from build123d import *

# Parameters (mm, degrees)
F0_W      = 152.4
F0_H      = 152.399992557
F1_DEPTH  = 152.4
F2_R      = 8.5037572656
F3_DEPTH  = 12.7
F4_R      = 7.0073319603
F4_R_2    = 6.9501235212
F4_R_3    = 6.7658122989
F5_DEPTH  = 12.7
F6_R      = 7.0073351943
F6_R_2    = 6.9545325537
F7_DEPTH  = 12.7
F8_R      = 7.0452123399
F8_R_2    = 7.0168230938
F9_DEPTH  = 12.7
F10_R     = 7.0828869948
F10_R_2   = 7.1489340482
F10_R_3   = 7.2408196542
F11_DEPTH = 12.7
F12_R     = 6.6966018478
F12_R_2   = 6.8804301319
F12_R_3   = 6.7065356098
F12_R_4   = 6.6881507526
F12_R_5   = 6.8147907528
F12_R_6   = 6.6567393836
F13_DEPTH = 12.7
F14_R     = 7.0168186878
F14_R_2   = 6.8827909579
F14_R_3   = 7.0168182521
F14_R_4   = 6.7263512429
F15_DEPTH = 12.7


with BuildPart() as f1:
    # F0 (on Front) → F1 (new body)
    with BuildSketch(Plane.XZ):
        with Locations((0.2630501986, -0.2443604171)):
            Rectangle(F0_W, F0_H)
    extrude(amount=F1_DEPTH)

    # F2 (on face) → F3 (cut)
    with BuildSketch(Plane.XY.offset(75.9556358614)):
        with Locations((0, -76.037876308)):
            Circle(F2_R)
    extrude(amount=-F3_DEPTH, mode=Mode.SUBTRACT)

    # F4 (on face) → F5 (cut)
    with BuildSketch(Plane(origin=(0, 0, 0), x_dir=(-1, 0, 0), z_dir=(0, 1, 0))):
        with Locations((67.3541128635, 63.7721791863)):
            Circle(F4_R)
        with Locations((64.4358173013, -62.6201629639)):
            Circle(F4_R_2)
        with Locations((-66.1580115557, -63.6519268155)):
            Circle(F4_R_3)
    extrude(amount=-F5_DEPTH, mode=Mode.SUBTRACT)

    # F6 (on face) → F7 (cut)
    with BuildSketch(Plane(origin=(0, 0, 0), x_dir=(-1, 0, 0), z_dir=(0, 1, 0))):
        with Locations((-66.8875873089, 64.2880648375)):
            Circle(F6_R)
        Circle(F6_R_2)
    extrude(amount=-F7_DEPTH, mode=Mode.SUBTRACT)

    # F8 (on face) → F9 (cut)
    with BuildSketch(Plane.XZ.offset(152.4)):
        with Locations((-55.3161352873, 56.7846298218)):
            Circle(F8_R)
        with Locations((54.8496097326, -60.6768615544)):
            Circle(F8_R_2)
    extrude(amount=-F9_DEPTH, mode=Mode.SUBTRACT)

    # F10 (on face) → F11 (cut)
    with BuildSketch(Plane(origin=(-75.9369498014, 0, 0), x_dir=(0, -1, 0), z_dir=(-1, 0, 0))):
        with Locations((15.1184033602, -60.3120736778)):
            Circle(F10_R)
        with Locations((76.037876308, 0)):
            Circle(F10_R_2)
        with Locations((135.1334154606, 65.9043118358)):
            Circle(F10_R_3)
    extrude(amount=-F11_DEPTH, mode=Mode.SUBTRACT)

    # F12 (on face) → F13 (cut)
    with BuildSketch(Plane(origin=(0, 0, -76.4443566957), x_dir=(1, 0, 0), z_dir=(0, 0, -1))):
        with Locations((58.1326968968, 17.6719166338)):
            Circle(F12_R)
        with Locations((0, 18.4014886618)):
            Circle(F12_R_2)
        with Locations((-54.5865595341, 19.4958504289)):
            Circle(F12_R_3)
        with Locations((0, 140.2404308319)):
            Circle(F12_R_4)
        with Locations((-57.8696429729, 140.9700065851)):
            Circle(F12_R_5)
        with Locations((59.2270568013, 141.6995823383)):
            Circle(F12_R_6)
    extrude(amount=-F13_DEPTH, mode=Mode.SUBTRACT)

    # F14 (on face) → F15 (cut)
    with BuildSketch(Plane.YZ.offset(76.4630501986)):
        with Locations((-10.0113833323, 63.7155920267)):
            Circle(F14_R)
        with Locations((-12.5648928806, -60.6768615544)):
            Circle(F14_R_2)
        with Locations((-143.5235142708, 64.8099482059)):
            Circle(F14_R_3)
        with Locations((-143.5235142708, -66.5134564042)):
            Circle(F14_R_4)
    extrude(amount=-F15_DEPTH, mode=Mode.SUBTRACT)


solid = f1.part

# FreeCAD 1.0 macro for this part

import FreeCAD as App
import Part
import Sketcher
from FreeCAD import Vector
Q = App.Units.Quantity


def add_polygon(sketch, points):
    """Adds a closed chain of lines whose ends are joined by coincident constraints."""
    first, n = sketch.GeometryCount, len(points)
    for a, b in zip(points, points[1:] + points[:1]):
        sketch.addGeometry(Part.LineSegment(App.Vector(*a, 0), App.Vector(*b, 0)), False)
    for i in range(n):
        sketch.addConstraint(Sketcher.Constraint("Coincident", first + i, 2, first + (i + 1) % n, 1))

doc = App.newDocument("Part")
body = doc.addObject("PartDesign::Body", "Body")

sketch1 = body.newObject("Sketcher::SketchObject", "Sketch")
sketch1.AttachmentSupport = (doc.getObject("XZ_Plane"), [""])
sketch1.MapMode = "FlatFace"
add_polygon(sketch1, [(-76, 76), (-76, -76), (76, -76), (76, 76)])
sketch1.addConstraint([
    Sketcher.Constraint("Vertical", 0),
    Sketcher.Constraint("Horizontal", 1),
    Sketcher.Constraint("Vertical", 2),
    Sketcher.Constraint("Horizontal", 3),
    Sketcher.Constraint("DistanceX", 1, 1, 1, 2, Q("6 in")),
    Sketcher.Constraint("DistanceY", 0, 2, 0, 1, Q("152.399993 mm")),
    Sketcher.Constraint("DistanceX", 0, 2, -1, 1, Q("75.93695 mm")),
    Sketcher.Constraint("DistanceY", 0, 2, -1, 1, Q("76.444357 mm")),
])
pad1 = body.newObject("PartDesign::Pad", "Pad")
pad1.Profile = sketch1
pad1.Length = Q("6 in")

sketch2 = body.newObject("Sketcher::SketchObject", "Sketch001")
sketch2.AttachmentSupport = (doc.getObject("XY_Plane"), [""])
sketch2.MapMode = "FlatFace"
sketch2.AttachmentOffset = App.Placement(Vector(0, 0, 75.955636), App.Rotation())
sketch2.addGeometry(Part.Circle(Vector(0, -76, 0), Vector(0, 0, 1), 9), False)
sketch2.addConstraint([
    Sketcher.Constraint("PointOnObject", 0, 3, -2),
    Sketcher.Constraint("Diameter", 0, Q("17.007515 mm")),
    Sketcher.Constraint("DistanceY", 0, 3, -1, 1, Q("76.037876 mm")),
])
pocket1 = body.newObject("PartDesign::Pocket", "Pocket")
pocket1.Profile = sketch2
pocket1.Length = Q("0.5 in")

sketch3 = body.newObject("Sketcher::SketchObject", "Sketch002")
sketch3.AttachmentSupport = (doc.getObject("XZ_Plane"), [""])
sketch3.MapMode = "FlatFace"
sketch3.addGeometry([
    Part.Circle(Vector(-67, 64, 0), Vector(0, 0, 1), 7),
    Part.Circle(Vector(-64, -63, 0), Vector(0, 0, 1), 7),
    Part.Circle(Vector(66, -64, 0), Vector(0, 0, 1), 7),
], False)
sketch3.addConstraint([
    Sketcher.Constraint("Diameter", 0, Q("14.014664 mm")),
    Sketcher.Constraint("Diameter", 1, Q("13.900247 mm")),
    Sketcher.Constraint("Diameter", 2, Q("13.531625 mm")),
    Sketcher.Constraint("DistanceY", -1, 1, 0, 3, Q("63.772179 mm")),
    Sketcher.Constraint("DistanceX", -1, 1, 2, 3, Q("66.158012 mm")),
    Sketcher.Constraint("DistanceX", 1, 3, 2, 3, Q("130.593829 mm")),
    Sketcher.Constraint("DistanceX", 0, 3, -1, 1, Q("67.354113 mm")),
    Sketcher.Constraint("DistanceY", 1, 3, -1, 1, Q("62.620163 mm")),
    Sketcher.Constraint("DistanceY", 2, 3, -1, 1, Q("63.651927 mm")),
])
pocket2 = body.newObject("PartDesign::Pocket", "Pocket001")
pocket2.Profile = sketch3
pocket2.Length = Q("0.5 in")
pocket2.Reversed = True

sketch4 = body.newObject("Sketcher::SketchObject", "Sketch003")
sketch4.AttachmentSupport = (doc.getObject("XZ_Plane"), [""])
sketch4.MapMode = "FlatFace"
sketch4.addGeometry([
    Part.Circle(Vector(67, 64, 0), Vector(0, 0, 1), 7),
    Part.Circle(Vector(0, 0, 0), Vector(0, 0, 1), 7),
], False)
sketch4.addConstraint([
    Sketcher.Constraint("Coincident", 1, 3, -1, 1),
    Sketcher.Constraint("Diameter", 0, Q("14.01467 mm")),
    Sketcher.Constraint("Diameter", 1, Q("13.909065 mm")),
    Sketcher.Constraint("DistanceX", -1, 1, 0, 3, Q("66.887587 mm")),
    Sketcher.Constraint("DistanceY", -1, 1, 0, 3, Q("64.288065 mm")),
])
pocket3 = body.newObject("PartDesign::Pocket", "Pocket002")
pocket3.Profile = sketch4
pocket3.Length = Q("0.5 in")
pocket3.Reversed = True

sketch5 = body.newObject("Sketcher::SketchObject", "Sketch004")
sketch5.AttachmentSupport = (doc.getObject("XZ_Plane"), [""])
sketch5.MapMode = "FlatFace"
sketch5.AttachmentOffset = App.Placement(Vector(0, 0, 6 * 25.4), App.Rotation())
sketch5.addGeometry([
    Part.Circle(Vector(-55, 57, 0), Vector(0, 0, 1), 7),
    Part.Circle(Vector(55, -61, 0), Vector(0, 0, 1), 7),
], False)
sketch5.addConstraint([
    Sketcher.Constraint("Diameter", 0, Q("14.090425 mm")),
    Sketcher.Constraint("Diameter", 1, Q("14.033646 mm")),
    Sketcher.Constraint("DistanceY", -1, 1, 0, 3, Q("56.78463 mm")),
    Sketcher.Constraint("DistanceX", -1, 1, 1, 3, Q("54.84961 mm")),
    Sketcher.Constraint("DistanceY", 1, 3, -1, 1, Q("60.676862 mm")),
    Sketcher.Constraint("DistanceX", 0, 3, -1, 1, Q("55.316135 mm")),
])
pocket4 = body.newObject("PartDesign::Pocket", "Pocket003")
pocket4.Profile = sketch5
pocket4.Length = Q("0.5 in")

sketch6 = body.newObject("Sketcher::SketchObject", "Sketch005")
sketch6.AttachmentSupport = (doc.getObject("YZ_Plane"), [""])
sketch6.MapMode = "FlatFace"
sketch6.AttachmentOffset = App.Placement(Vector(0, 0, -75.93695), App.Rotation())
sketch6.addGeometry([
    Part.Circle(Vector(-15, -60, 0), Vector(0, 0, 1), 7),
    Part.Circle(Vector(-76, 0, 0), Vector(0, 0, 1), 7),
    Part.Circle(Vector(-135, 66, 0), Vector(0, 0, 1), 7),
], False)
sketch6.addConstraint([
    Sketcher.Constraint("PointOnObject", 1, 3, -1),
    Sketcher.Constraint("Diameter", 1, Q("14.297868 mm")),
    Sketcher.Constraint("Diameter", 2, Q("14.481639 mm")),
    Sketcher.Constraint("Diameter", 0, Q("14.165774 mm")),
    Sketcher.Constraint("DistanceY", -1, 1, 2, 3, Q("65.904312 mm")),
    Sketcher.Constraint("DistanceX", 2, 3, 1, 3, Q("59.095539 mm")),
    Sketcher.Constraint("DistanceX", 0, 3, -1, 1, Q("15.118403 mm")),
    Sketcher.Constraint("DistanceY", 0, 3, -1, 1, Q("60.312074 mm")),
    Sketcher.Constraint("DistanceX", 1, 3, -1, 1, Q("76.037876 mm")),
])
pocket5 = body.newObject("PartDesign::Pocket", "Pocket004")
pocket5.Profile = sketch6
pocket5.Length = Q("0.5 in")
pocket5.Reversed = True

sketch7 = body.newObject("Sketcher::SketchObject", "Sketch006")
sketch7.AttachmentSupport = (doc.getObject("XY_Plane"), [""])
sketch7.MapMode = "FlatFace"
sketch7.AttachmentOffset = App.Placement(Vector(0, 0, -76.444357), App.Rotation())
sketch7.addGeometry([
    Part.Circle(Vector(58, -18, 0), Vector(0, 0, 1), 7),
    Part.Circle(Vector(0, -18, 0), Vector(0, 0, 1), 7),
    Part.Circle(Vector(-55, -19, 0), Vector(0, 0, 1), 7),
    Part.Circle(Vector(0, -140, 0), Vector(0, 0, 1), 7),
    Part.Circle(Vector(-58, -141, 0), Vector(0, 0, 1), 7),
    Part.Circle(Vector(59, -142, 0), Vector(0, 0, 1), 7),
], False)
sketch7.addConstraint([
    Sketcher.Constraint("PointOnObject", 1, 3, -2),
    Sketcher.Constraint("PointOnObject", 3, 3, -2),
    Sketcher.Constraint("Diameter", 3, Q("13.376302 mm")),
    Sketcher.Constraint("Diameter", 1, Q("13.76086 mm")),
    Sketcher.Constraint("Diameter", 2, Q("13.413071 mm")),
    Sketcher.Constraint("Diameter", 4, Q("13.629582 mm")),
    Sketcher.Constraint("Diameter", 5, Q("13.313479 mm")),
    Sketcher.Constraint("Diameter", 0, Q("13.393204 mm")),
    Sketcher.Constraint("DistanceX", 4, 3, 5, 3, Q("117.0967 mm")),
    Sketcher.Constraint("DistanceY", 1, 3, -1, 1, Q("18.401489 mm")),
    Sketcher.Constraint("DistanceX", 2, 3, -1, 1, Q("54.58656 mm")),
    Sketcher.Constraint("DistanceY", 2, 3, -1, 1, Q("19.49585 mm")),
    Sketcher.Constraint("DistanceY", 3, 3, -1, 1, Q("140.240431 mm")),
    Sketcher.Constraint("DistanceX", 4, 3, 0, 3, Q("116.00234 mm")),
    Sketcher.Constraint("DistanceY", 4, 3, 0, 3, Q("123.29809 mm")),
    Sketcher.Constraint("DistanceY", 5, 3, 3, 3, Q("1.459152 mm")),
    Sketcher.Constraint("DistanceX", -1, 1, 0, 3, Q("58.132697 mm")),
    Sketcher.Constraint("DistanceY", 0, 3, -1, 1, Q("17.671917 mm")),
])
pocket6 = body.newObject("PartDesign::Pocket", "Pocket005")
pocket6.Profile = sketch7
pocket6.Length = Q("0.5 in")
pocket6.Reversed = True

sketch8 = body.newObject("Sketcher::SketchObject", "Sketch007")
sketch8.AttachmentSupport = (doc.getObject("YZ_Plane"), [""])
sketch8.MapMode = "FlatFace"
sketch8.AttachmentOffset = App.Placement(Vector(0, 0, 76.46305), App.Rotation())
sketch8.addGeometry([
    Part.Circle(Vector(-10, 64, 0), Vector(0, 0, 1), 7),
    Part.Circle(Vector(-13, -61, 0), Vector(0, 0, 1), 7),
    Part.Circle(Vector(-144, 65, 0), Vector(0, 0, 1), 7),
    Part.Circle(Vector(-144, -67, 0), Vector(0, 0, 1), 7),
], False)
sketch8.addConstraint([
    Sketcher.Constraint("Equal", 0, 2),
    Sketcher.Constraint("Vertical", 2, 3, 3, 3),
    Sketcher.Constraint("Diameter", 1, Q("13.765582 mm")),
    Sketcher.Constraint("Diameter", 0, Q("14.033637 mm")),
    Sketcher.Constraint("Diameter", 3, Q("13.452702 mm")),
    Sketcher.Constraint("DistanceY", 1, 3, -1, 1, Q("60.676862 mm")),
    Sketcher.Constraint("DistanceY", -1, 1, 2, 3, Q("64.809948 mm")),
    Sketcher.Constraint("DistanceX", 1, 3, 0, 3, Q("2.55351 mm")),
    Sketcher.Constraint("DistanceX", 2, 3, 0, 3, Q("133.512131 mm")),
    Sketcher.Constraint("DistanceY", 3, 3, 0, 3, Q("130.229048 mm")),
    Sketcher.Constraint("DistanceX", 0, 3, -1, 1, Q("10.011383 mm")),
    Sketcher.Constraint("DistanceY", -1, 1, 0, 3, Q("63.715592 mm")),
])
pocket7 = body.newObject("PartDesign::Pocket", "Pocket006")
pocket7.Profile = sketch8
pocket7.Length = Q("0.5 in")

doc.recompute()
